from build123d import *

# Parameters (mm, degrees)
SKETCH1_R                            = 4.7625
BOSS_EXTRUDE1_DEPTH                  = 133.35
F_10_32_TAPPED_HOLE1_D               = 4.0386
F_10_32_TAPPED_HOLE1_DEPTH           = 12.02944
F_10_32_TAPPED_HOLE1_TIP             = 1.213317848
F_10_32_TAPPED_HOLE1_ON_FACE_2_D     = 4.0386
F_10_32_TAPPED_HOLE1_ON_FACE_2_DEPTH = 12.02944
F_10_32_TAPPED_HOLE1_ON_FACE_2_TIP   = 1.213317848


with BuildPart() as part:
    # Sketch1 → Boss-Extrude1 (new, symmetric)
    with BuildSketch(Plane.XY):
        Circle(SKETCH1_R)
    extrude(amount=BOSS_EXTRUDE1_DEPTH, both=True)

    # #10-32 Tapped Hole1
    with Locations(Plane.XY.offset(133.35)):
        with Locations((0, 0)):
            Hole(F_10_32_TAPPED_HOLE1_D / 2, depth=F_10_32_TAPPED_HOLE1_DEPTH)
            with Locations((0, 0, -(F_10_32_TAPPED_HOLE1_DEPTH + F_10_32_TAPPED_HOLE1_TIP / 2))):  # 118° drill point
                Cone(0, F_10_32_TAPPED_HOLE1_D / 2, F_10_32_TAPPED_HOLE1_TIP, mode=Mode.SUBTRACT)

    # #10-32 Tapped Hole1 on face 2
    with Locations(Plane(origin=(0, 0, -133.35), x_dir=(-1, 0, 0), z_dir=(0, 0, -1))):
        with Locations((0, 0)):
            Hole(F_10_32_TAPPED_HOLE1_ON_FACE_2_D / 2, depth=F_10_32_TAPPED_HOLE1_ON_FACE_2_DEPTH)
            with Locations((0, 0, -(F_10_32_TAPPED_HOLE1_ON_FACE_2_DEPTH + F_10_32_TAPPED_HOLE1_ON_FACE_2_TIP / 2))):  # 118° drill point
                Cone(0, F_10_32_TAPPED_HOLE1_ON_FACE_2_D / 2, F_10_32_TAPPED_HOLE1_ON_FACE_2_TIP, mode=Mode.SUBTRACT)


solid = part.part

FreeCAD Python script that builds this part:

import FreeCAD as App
import Part
import Sketcher
Q = App.Units.Quantity

doc = App.newDocument("Part")
body = doc.addObject("PartDesign::Body", "Body")

# Sketch on XY plane
sketch1 = body.newObject("Sketcher::SketchObject", "Sketch")
sketch1.AttachmentSupport = (doc.getObject("XY_Plane"), [""])
sketch1.MapMode = "FlatFace"
sketch1.addGeometry(Part.Circle(App.Vector(0, 0, 0), App.Vector(0, 0, 1), 4.7625), False)
sketch1.addConstraint(Sketcher.Constraint("Coincident", 0, 3, -1, 1))
sketch1.addConstraint(Sketcher.Constraint("Diameter", 0, Q("0.375 in")))
pad1 = body.newObject("PartDesign::Pad", "Pad")
pad1.Profile = sketch1
pad1.Length = Q("10.5 in")
pad1.Midplane = True

# Sketch on XY plane
sketch2 = body.newObject("Sketcher::SketchObject", "Sketch001")
sketch2.AttachmentSupport = (doc.getObject("XY_Plane"), [""])
sketch2.MapMode = "FlatFace"
sketch2.AttachmentOffset = App.Placement(App.Vector(0, 0, 5.25 * 25.4), App.Rotation())
sketch2.addGeometry(Part.Circle(App.Vector(0, 0, 0), App.Vector(0, 0, 1), 2.0193), False)
sketch2.addConstraint(Sketcher.Constraint("Coincident", 0, 3, -1, 1))
sketch2.addConstraint(Sketcher.Constraint("Diameter", 0, Q("0.159 in")))
doc.recompute()
hole = body.newObject("PartDesign::Hole", "Hole")
hole.Profile = sketch2
hole.ThreadType = "None"
hole.Diameter = Q("0.159 in")
hole.DepthType = "Dimension"
hole.Depth = Q("0.4736 in")
hole.DrillPoint = "Angled"
hole.DrillPointAngle = 118

# Sketch on XY plane
sketch3 = body.newObject("Sketcher::SketchObject", "Sketch002")
sketch3.AttachmentSupport = (doc.getObject("XY_Plane"), [""])
sketch3.MapMode = "FlatFace"
sketch3.AttachmentOffset = App.Placement(App.Vector(0, 0, -5.25 * 25.4), App.Rotation())
sketch3.addGeometry(Part.Circle(App.Vector(0, 0, 0), App.Vector(0, 0, 1), 2.0193), False)
sketch3.addConstraint(Sketcher.Constraint("Coincident", 0, 3, -1, 1))
sketch3.addConstraint(Sketcher.Constraint("Diameter", 0, Q("0.159 in")))
doc.recompute()
hole2 = body.newObject("PartDesign::Hole", "Hole001")
hole2.Profile = sketch3
hole2.ThreadType = "None"
hole2.Diameter = Q("0.159 in")
hole2.DepthType = "Dimension"
hole2.Depth = Q("0.4736 in")
hole2.DrillPoint = "Angled"
hole2.DrillPointAngle = 118
hole2.Reversed = True

doc.recompute()
